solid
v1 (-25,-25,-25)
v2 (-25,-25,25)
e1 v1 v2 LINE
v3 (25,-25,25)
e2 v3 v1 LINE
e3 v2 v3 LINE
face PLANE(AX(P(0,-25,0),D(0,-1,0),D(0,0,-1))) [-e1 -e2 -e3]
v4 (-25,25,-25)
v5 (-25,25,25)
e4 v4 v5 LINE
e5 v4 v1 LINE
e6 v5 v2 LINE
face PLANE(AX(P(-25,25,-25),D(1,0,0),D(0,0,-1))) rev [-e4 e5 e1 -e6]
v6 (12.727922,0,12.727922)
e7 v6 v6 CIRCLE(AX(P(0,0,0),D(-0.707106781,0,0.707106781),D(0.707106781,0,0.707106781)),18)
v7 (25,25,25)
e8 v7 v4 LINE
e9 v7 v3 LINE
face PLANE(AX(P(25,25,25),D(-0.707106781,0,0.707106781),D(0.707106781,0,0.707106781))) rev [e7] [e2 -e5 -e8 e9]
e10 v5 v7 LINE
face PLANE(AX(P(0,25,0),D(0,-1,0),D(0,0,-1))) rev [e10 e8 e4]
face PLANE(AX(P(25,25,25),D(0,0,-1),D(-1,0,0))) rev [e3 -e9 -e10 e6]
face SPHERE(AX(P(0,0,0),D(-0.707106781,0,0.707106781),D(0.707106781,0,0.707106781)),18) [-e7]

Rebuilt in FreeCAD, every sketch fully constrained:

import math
import FreeCAD as App
import Part
import Sketcher

V = App.Vector

doc = App.newDocument("Part")
body = doc.addObject("PartDesign::Body", "Body")

# Sketch on XZ plane
sketch1 = doc.addObject("Sketcher::SketchObject", "Sketch")
body.addObject(sketch1)
sketch1.AttachmentSupport = (doc.XZ_Plane, [""])
sketch1.MapMode = "FlatFace"
sketch1.addGeometry(Part.LineSegment(V(-18, 0, 0), V(18, 0, 0)), False)
sketch1.addGeometry(Part.ArcOfCircle(Part.Circle(V(0, 0, 0), V(0, 0, 1), 18), math.radians(180), math.radians(360)), False)
sketch1.addConstraint(Sketcher.Constraint("Coincident", 0, 1, 1, 1))
sketch1.addConstraint(Sketcher.Constraint("Coincident", 1, 2, 0, 2))
sketch1.addConstraint(Sketcher.Constraint("Horizontal", 0))
sketch1.addConstraint(Sketcher.Constraint("Coincident", 1, 3, -1, 1))
sketch1.addConstraint(Sketcher.Constraint("PointOnObject", 0, 1, -1))
sketch1.addConstraint(Sketcher.Constraint("Radius", 1, 18.0))
revolution = doc.addObject("PartDesign::Revolution", "Revolution")
body.addObject(revolution)
revolution.Profile = sketch1
revolution.ReferenceAxis = (sketch1, ["H_Axis"])
revolution.Angle = 360

# Sketch on XZ plane
sketch2 = doc.addObject("Sketcher::SketchObject", "Sketch001")
body.addObject(sketch2)
sketch2.AttachmentSupport = (doc.XZ_Plane, [""])
sketch2.MapMode = "FlatFace"
sketch2.addGeometry(Part.LineSegment(V(25, 25, 0), V(-25, -25, 0)), False)
sketch2.addGeometry(Part.LineSegment(V(-25, -25, 0), V(-25, 25, 0)), False)
sketch2.addGeometry(Part.LineSegment(V(-25, 25, 0), V(25, 25, 0)), False)
sketch2.addConstraint(Sketcher.Constraint("Coincident", 0, 2, 1, 1))
sketch2.addConstraint(Sketcher.Constraint("Coincident", 1, 2, 2, 1))
sketch2.addConstraint(Sketcher.Constraint("Coincident", 2, 2, 0, 1))
sketch2.addConstraint(Sketcher.Constraint("Vertical", 1))
sketch2.addConstraint(Sketcher.Constraint("Horizontal", 2))
sketch2.addConstraint(Sketcher.Constraint("Symmetric", 0, 2, 2, 2, -1, 1))
sketch2.addConstraint(Sketcher.Constraint("Equal", 2, 1))
sketch2.addConstraint(Sketcher.Constraint("DistanceX", 2, 1, 2, 2, 50.0))
pad1 = doc.addObject("PartDesign::Pad", "Pad")
body.addObject(pad1)
pad1.Profile = sketch2
pad1.Length = 50
pad1.Midplane = True

doc.recompute()
